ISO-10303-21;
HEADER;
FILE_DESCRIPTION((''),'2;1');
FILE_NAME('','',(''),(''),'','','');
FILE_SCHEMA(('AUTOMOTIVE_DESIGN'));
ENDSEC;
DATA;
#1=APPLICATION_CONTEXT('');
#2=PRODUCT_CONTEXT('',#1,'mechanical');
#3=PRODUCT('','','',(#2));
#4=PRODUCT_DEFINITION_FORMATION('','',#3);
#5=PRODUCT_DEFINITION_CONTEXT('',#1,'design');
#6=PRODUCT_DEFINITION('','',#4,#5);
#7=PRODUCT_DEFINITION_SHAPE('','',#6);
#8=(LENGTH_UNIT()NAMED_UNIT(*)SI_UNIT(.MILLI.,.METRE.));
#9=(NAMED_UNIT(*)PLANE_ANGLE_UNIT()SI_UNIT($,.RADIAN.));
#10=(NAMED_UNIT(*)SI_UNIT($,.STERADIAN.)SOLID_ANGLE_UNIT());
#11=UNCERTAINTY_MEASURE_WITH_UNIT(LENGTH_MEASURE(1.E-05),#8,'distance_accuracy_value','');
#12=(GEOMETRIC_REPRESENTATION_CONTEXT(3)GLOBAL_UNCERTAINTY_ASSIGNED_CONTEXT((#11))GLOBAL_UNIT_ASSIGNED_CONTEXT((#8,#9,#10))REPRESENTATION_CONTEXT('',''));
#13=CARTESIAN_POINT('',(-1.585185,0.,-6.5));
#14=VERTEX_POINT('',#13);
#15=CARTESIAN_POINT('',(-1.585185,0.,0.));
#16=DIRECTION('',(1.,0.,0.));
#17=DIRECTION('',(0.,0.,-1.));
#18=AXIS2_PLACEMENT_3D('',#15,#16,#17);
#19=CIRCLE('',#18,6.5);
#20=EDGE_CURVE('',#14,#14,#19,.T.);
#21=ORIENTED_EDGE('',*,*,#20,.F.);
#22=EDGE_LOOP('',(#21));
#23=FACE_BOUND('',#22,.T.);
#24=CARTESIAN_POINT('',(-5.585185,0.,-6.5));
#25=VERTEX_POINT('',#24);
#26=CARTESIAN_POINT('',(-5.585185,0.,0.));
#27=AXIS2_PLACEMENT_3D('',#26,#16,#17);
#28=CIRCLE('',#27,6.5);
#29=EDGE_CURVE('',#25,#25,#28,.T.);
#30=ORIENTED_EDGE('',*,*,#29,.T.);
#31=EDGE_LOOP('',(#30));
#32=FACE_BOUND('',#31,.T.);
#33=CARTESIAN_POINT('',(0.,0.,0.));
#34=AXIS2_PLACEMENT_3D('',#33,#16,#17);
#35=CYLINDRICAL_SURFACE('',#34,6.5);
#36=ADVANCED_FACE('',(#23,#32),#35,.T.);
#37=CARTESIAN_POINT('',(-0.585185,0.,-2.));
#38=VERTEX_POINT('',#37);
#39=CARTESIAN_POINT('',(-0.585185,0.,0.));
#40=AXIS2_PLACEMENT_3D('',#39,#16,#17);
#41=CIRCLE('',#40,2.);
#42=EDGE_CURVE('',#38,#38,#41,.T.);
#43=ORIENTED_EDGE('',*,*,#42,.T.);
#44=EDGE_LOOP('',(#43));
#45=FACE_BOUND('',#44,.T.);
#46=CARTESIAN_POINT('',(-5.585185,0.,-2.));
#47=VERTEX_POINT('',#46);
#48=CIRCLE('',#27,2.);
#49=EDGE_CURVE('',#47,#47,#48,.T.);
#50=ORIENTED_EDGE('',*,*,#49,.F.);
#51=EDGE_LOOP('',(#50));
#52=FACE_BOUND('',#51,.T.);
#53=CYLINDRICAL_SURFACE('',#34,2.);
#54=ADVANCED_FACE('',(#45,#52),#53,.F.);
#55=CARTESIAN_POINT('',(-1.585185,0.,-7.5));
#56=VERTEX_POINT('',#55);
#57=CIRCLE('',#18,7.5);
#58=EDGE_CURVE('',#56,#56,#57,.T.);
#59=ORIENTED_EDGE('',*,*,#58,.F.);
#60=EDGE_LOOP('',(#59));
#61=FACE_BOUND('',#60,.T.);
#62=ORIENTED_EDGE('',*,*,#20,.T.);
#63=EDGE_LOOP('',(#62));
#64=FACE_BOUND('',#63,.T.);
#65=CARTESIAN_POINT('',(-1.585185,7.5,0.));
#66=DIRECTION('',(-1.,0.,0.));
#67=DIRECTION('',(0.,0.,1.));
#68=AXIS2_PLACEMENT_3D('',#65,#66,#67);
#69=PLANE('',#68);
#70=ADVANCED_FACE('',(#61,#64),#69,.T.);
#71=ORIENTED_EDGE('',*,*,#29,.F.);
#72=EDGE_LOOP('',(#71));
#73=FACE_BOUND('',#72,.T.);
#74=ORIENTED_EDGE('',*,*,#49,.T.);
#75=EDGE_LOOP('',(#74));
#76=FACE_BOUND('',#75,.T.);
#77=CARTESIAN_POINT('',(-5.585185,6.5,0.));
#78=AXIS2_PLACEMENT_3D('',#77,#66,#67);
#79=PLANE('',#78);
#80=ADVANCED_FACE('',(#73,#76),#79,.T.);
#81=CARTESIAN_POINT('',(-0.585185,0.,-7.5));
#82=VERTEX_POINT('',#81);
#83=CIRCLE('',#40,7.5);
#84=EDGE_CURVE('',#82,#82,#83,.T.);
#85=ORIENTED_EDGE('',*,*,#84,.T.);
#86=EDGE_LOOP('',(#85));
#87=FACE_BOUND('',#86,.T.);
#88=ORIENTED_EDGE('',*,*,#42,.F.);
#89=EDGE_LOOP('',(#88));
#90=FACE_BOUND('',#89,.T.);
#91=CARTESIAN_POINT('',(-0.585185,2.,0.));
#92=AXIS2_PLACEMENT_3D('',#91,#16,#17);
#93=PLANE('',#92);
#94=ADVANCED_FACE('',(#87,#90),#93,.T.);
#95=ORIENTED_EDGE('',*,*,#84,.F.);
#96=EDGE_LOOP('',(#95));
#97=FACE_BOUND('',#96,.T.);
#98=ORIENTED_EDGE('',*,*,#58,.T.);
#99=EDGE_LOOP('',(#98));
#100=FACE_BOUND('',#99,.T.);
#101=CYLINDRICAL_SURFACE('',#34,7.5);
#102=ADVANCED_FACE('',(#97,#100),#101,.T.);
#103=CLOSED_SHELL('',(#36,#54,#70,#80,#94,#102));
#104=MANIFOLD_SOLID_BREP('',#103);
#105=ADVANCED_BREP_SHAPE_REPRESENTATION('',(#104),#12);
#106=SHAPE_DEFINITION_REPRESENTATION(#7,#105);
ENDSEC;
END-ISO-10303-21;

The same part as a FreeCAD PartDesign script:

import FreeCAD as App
import Part
import Sketcher

V = App.Vector
Q = App.Units.Quantity


def add_polygon(sketch, points):
    """Adds a closed chain of lines whose ends are joined by coincident constraints."""
    first, n = sketch.GeometryCount, len(points)
    for a, b in zip(points, points[1:] + points[:1]):
        sketch.addGeometry(Part.LineSegment(App.Vector(*a, 0), App.Vector(*b, 0)), False)
    for i in range(n):
        sketch.addConstraint(Sketcher.Constraint("Coincident", first + i, 2, first + (i + 1) % n, 1))

doc = App.newDocument("Part")
body = doc.addObject("PartDesign::Body", "Body")

sketch1 = body.newObject("Sketcher::SketchObject", "Sketch")
sketch1.AttachmentSupport = (doc.getObject("XY_Plane"), [""])
sketch1.MapMode = "FlatFace"
add_polygon(sketch1, [(-0.6, 7.5), (-1.6, 7.5), (-1.6, 6.5), (-5.6, 6.5), (-5.6, 2), (-0.6, 2)])
sketch1.addConstraint([
    Sketcher.Constraint("Horizontal", 0),
    Sketcher.Constraint("Vertical", 1),
    Sketcher.Constraint("Horizontal", 2),
    Sketcher.Constraint("Vertical", 3),
    Sketcher.Constraint("Horizontal", 4),
    Sketcher.Constraint("Vertical", 5),
    Sketcher.Constraint("Equal", 0, 1),
    Sketcher.Constraint("DistanceX", 0, 2, 0, 1, Q("1 mm")),
    Sketcher.Constraint("DistanceX", 2, 2, 2, 1, Q("4 mm")),
    Sketcher.Constraint("DistanceY", 3, 2, 3, 1, Q("4.5 mm")),
    Sketcher.Constraint("DistanceY", -1, 1, 3, 2, Q("2 mm")),
    Sketcher.Constraint("DistanceX", 0, 2, -1, 1, Q("1.585185 mm")),
])
revolution = body.newObject("PartDesign::Revolution", "Revolution")
revolution.Profile = sketch1
revolution.ReferenceAxis = (sketch1, ["H_Axis"])
revolution.Angle = 360

doc.recompute()
